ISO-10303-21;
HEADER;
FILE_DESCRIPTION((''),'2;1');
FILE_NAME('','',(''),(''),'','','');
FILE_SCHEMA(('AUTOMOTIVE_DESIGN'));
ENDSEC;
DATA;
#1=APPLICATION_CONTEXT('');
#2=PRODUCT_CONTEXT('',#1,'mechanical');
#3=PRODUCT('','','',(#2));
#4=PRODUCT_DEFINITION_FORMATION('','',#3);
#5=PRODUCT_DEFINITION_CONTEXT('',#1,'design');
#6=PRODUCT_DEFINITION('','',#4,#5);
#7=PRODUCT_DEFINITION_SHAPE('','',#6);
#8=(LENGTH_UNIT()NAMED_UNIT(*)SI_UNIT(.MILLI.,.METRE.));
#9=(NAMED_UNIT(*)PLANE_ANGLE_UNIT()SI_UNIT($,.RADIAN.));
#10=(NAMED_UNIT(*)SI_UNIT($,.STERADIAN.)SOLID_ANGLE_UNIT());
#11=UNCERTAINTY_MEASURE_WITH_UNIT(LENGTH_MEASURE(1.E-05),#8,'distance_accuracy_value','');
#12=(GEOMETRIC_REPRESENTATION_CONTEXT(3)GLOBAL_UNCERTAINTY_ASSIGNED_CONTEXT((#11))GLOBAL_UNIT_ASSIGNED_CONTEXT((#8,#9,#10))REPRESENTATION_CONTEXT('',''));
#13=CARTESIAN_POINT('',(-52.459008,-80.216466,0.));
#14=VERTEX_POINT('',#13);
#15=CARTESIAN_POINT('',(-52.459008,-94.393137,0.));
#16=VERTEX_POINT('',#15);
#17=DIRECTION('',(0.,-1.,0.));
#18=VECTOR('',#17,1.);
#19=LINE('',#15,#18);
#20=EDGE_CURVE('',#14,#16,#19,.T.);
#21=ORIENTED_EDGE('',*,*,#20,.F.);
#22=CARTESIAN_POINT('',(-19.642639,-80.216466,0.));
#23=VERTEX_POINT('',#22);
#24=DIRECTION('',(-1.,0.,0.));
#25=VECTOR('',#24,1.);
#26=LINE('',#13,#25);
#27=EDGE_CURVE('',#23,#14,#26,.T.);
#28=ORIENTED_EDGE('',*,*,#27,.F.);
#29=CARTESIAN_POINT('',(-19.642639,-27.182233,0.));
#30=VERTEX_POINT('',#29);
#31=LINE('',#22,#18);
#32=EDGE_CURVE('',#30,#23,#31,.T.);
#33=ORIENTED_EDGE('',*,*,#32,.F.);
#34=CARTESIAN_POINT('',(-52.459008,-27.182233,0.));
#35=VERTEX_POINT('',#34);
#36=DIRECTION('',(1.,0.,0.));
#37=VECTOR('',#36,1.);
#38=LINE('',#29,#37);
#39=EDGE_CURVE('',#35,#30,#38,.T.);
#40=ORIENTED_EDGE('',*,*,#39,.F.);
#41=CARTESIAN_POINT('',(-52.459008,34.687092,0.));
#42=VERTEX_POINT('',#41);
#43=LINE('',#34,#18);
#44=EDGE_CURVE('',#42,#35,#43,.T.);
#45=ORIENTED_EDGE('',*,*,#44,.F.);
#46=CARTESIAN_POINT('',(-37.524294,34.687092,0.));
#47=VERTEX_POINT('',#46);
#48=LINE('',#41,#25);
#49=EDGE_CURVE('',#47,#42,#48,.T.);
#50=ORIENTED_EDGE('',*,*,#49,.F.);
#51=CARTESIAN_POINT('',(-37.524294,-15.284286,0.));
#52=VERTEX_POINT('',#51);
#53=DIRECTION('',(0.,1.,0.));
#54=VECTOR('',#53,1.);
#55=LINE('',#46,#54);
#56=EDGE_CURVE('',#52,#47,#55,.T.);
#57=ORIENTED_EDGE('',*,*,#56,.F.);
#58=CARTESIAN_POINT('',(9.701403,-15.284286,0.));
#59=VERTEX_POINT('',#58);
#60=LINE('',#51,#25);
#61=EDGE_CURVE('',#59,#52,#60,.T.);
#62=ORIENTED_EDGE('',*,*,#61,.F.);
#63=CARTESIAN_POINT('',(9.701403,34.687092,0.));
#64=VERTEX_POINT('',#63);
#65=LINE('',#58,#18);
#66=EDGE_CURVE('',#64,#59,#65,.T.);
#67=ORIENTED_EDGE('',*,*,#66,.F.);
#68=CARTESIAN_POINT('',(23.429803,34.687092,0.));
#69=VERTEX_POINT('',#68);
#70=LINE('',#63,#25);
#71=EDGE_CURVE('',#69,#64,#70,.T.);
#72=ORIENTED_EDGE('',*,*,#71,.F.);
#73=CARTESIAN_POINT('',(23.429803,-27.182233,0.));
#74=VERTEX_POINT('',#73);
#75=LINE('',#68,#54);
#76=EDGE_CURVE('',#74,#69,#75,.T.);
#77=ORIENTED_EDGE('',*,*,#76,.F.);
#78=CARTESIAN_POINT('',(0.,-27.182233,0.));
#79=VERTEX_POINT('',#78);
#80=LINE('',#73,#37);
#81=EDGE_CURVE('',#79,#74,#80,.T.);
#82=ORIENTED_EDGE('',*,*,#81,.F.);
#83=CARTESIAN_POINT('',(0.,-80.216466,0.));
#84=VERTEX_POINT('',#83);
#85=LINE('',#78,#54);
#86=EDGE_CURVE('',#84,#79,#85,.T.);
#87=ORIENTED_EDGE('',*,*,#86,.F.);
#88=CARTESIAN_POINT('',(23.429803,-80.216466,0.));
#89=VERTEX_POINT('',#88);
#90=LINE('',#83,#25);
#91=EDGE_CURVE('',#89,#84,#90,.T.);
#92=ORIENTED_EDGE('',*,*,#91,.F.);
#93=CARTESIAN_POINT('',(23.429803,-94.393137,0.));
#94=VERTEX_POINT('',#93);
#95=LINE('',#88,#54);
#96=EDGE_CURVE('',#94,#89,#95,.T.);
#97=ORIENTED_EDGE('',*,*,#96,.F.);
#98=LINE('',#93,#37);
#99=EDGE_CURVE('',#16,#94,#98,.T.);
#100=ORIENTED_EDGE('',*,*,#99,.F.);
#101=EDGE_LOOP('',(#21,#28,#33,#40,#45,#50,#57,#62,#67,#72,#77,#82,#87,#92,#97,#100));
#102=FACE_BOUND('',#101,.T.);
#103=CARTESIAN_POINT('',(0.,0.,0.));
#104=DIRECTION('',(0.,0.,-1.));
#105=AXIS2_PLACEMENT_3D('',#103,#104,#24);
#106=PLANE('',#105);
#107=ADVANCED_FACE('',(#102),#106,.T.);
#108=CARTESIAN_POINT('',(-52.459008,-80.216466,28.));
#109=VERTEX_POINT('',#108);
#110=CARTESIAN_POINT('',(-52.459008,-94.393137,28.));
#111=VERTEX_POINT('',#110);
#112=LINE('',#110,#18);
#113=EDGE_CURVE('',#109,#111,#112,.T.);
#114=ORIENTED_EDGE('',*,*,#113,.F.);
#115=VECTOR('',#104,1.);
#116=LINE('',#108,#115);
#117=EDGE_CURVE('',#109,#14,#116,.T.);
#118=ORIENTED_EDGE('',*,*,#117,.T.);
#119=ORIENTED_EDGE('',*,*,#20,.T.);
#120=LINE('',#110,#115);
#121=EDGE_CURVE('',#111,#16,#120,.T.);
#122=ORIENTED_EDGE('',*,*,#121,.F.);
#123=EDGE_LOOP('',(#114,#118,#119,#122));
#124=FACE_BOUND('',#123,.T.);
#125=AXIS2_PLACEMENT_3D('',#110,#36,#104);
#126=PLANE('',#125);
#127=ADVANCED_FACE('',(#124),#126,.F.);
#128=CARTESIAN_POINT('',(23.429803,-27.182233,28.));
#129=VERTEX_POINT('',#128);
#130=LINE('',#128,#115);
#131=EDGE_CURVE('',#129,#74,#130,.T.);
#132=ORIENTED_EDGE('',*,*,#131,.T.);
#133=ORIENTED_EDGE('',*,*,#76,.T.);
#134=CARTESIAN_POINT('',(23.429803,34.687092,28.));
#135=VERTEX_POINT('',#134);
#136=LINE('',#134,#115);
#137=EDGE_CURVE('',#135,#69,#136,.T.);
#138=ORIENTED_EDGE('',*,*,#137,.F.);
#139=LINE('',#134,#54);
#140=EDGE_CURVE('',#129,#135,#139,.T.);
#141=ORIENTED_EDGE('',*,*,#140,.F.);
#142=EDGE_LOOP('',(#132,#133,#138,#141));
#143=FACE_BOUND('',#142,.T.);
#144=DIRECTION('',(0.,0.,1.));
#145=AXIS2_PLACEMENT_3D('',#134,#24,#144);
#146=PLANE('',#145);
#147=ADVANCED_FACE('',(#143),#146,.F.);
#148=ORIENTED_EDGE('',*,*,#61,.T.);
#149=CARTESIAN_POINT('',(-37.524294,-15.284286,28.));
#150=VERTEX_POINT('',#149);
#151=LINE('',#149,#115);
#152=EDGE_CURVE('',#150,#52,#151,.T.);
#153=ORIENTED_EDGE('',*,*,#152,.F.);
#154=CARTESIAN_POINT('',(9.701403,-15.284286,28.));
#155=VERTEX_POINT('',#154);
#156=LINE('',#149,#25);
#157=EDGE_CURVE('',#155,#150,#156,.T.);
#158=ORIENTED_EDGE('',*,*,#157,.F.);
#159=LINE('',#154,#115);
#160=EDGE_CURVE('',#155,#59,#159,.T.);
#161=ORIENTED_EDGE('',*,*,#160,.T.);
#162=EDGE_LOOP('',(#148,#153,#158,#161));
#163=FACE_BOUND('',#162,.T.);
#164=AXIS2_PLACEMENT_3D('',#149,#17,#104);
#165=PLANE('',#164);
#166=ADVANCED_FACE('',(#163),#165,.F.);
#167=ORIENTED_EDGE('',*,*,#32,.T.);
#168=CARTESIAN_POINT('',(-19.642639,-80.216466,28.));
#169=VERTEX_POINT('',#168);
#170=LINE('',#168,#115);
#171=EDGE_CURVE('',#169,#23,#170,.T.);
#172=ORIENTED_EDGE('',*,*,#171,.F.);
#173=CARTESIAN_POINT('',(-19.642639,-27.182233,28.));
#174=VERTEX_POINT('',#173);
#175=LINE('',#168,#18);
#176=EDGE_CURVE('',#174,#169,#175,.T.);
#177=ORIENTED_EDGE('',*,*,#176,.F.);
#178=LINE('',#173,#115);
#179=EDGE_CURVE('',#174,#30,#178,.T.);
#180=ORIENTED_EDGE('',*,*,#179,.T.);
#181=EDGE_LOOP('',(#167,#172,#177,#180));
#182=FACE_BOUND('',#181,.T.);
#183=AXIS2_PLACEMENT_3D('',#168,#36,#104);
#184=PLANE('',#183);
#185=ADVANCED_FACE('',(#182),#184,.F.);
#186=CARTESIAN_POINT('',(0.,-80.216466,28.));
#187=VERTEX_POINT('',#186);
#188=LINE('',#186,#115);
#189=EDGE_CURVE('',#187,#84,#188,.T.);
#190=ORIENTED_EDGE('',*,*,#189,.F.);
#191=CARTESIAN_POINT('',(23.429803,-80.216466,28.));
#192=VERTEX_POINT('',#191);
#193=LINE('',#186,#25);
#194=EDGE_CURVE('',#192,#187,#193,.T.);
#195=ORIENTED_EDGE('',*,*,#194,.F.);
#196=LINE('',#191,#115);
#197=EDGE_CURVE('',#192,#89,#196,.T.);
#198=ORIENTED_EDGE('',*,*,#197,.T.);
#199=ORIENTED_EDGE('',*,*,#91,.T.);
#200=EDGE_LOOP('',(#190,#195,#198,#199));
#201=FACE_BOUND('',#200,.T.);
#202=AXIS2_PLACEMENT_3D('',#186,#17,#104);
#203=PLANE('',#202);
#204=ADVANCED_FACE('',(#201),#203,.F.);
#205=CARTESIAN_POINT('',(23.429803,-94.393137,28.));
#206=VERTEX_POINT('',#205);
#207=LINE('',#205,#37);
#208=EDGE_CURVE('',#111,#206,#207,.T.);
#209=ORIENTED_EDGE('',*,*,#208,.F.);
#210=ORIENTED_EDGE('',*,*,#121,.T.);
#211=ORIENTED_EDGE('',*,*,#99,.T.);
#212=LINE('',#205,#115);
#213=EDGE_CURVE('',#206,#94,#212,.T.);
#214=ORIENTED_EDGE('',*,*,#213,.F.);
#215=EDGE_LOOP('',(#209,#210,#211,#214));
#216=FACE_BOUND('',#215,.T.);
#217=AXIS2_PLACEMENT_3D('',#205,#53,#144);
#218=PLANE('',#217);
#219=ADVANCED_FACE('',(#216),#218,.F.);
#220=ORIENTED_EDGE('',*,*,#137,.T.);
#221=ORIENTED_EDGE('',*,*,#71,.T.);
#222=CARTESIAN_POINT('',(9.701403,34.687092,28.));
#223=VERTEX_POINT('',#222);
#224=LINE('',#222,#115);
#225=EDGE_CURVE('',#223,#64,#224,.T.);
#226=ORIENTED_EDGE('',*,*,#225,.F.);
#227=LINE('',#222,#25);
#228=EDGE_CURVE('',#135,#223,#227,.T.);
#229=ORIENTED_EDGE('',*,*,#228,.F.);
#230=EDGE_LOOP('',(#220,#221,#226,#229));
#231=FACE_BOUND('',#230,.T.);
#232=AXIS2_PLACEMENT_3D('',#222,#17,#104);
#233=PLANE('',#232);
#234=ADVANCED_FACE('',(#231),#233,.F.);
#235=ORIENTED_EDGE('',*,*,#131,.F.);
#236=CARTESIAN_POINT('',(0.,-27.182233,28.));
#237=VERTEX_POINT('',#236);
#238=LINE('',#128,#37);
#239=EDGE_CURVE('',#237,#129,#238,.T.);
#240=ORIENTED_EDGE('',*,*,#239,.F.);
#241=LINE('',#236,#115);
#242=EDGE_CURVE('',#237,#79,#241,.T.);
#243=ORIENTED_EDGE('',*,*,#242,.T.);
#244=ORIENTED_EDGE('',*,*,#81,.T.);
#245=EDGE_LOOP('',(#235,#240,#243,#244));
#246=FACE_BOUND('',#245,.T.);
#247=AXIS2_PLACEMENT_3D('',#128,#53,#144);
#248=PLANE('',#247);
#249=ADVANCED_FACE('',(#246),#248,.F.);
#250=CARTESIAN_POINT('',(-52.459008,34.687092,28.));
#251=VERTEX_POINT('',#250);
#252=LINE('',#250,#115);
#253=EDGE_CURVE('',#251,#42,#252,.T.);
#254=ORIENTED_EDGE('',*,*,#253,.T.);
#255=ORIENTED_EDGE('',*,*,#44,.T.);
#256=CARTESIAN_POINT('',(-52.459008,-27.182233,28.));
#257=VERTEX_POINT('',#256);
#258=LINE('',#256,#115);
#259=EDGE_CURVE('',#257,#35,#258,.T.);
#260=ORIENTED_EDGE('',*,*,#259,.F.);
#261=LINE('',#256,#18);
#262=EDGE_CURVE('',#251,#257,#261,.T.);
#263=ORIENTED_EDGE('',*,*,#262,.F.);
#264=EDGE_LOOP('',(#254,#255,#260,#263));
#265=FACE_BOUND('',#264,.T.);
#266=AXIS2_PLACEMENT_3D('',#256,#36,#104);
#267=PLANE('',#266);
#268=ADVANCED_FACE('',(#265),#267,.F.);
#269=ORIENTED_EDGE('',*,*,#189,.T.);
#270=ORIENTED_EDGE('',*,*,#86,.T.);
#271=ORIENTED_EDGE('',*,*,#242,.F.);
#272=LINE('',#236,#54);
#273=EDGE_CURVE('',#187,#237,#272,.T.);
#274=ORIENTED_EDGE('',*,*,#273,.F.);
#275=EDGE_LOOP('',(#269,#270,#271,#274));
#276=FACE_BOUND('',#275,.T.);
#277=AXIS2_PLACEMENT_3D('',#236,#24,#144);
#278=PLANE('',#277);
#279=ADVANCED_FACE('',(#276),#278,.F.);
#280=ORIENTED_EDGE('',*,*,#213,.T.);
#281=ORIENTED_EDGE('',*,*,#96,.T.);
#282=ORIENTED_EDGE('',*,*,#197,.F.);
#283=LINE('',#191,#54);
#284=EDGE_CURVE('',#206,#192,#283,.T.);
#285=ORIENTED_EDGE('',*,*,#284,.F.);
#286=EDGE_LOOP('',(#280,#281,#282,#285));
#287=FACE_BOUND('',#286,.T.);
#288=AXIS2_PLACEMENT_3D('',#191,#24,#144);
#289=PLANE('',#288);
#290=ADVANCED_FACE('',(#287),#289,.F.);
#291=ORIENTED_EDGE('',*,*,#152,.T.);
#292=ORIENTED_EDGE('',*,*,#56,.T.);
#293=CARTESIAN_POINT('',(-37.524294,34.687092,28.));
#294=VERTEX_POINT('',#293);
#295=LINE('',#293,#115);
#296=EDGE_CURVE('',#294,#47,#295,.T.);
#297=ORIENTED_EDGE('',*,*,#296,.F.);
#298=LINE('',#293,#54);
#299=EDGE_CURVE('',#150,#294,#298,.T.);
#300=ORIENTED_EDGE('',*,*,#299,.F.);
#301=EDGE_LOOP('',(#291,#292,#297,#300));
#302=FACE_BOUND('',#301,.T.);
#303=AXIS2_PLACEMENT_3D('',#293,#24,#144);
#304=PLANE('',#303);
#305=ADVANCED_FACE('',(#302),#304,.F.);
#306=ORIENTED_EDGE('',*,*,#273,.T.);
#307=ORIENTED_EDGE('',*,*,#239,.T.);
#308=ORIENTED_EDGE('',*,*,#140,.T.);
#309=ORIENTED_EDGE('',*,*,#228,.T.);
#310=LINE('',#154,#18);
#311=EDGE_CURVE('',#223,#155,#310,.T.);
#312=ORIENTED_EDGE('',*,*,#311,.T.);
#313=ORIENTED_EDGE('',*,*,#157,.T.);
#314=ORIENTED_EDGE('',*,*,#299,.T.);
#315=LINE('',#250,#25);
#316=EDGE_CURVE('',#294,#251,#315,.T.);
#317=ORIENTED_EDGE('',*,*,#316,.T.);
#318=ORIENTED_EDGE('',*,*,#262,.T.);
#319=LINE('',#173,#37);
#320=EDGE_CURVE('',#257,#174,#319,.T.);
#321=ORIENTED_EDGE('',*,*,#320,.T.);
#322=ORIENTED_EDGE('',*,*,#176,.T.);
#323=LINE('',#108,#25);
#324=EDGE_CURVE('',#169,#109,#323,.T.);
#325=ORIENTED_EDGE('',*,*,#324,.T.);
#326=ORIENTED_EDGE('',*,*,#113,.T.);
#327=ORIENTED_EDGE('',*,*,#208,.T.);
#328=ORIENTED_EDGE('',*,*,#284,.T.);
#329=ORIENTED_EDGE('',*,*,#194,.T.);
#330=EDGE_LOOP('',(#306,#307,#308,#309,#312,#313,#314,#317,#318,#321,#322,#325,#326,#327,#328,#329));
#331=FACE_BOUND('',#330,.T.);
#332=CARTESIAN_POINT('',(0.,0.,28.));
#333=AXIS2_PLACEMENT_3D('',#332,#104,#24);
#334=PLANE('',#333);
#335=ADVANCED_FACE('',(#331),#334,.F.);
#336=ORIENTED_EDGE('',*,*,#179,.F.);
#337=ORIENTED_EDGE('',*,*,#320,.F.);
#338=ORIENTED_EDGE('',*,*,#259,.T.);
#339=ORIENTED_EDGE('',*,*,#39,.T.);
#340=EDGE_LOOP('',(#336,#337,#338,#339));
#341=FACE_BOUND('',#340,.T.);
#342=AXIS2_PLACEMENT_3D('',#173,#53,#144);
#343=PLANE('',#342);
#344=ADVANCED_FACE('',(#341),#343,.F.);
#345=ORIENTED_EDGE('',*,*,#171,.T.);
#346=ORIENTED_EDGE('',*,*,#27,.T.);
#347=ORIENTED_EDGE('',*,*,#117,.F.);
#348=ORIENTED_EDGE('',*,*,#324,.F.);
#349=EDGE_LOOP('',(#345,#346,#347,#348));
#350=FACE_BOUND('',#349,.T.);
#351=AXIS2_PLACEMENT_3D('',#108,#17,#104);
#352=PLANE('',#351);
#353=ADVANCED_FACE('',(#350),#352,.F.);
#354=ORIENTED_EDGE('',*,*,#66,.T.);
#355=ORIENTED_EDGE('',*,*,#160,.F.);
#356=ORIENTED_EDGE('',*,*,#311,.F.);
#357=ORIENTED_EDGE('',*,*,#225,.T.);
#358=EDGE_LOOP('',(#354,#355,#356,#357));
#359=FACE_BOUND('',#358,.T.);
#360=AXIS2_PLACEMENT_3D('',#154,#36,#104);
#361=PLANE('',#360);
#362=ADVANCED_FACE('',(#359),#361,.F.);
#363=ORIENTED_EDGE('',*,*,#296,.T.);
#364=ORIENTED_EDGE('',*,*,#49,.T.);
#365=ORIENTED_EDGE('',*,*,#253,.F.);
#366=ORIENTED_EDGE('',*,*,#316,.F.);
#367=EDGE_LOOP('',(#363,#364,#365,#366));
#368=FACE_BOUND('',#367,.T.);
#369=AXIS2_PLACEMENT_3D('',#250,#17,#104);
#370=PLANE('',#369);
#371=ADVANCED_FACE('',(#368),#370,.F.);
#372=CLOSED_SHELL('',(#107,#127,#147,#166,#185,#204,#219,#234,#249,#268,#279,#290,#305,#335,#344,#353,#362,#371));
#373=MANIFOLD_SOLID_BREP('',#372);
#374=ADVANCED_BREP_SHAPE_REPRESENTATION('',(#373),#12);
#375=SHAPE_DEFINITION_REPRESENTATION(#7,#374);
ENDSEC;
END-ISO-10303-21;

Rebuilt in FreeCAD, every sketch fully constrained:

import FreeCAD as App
import Part
import Sketcher
from FreeCAD import Vector
Q = App.Units.Quantity


def add_polygon(sketch, points):
    """Adds a closed chain of lines whose ends are joined by coincident constraints."""
    first, n = sketch.GeometryCount, len(points)
    for a, b in zip(points, points[1:] + points[:1]):
        sketch.addGeometry(Part.LineSegment(App.Vector(*a, 0), App.Vector(*b, 0)), False)
    for i in range(n):
        sketch.addConstraint(Sketcher.Constraint("Coincident", first + i, 2, first + (i + 1) % n, 1))

doc = App.newDocument("Part")
params = doc.addObject("Spreadsheet::Sheet", "Params")
for row, (alias, value) in enumerate([
    ("pad1_length", "28 mm"),
], start=1):
    params.set(f"A{row}", alias)
    params.set(f"B{row}", "=" + value)
    params.setAlias(f"B{row}", alias)

body = doc.addObject("PartDesign::Body", "Body")

# Sketch on XY plane
sketch1 = body.newObject("Sketcher::SketchObject", "Sketch")
sketch1.AttachmentSupport = (doc.getObject("XY_Plane"), [""])
sketch1.MapMode = "FlatFace"
add_polygon(sketch1, [(-38, -15), (-38, 35), (-52, 35), (-52, -27), (-20, -27), (-20, -80), (-52, -80), (-52, -94), (23, -94), (23, -80), (0, -80), (0, -27), (23, -27), (23, 35), (10, 35), (10, -15)])  # lines 0-15
sketch1.addConstraint([
    Sketcher.Constraint("Vertical", 0),
    Sketcher.Constraint("Horizontal", 1),
    Sketcher.Constraint("Vertical", 2),
    Sketcher.Constraint("Horizontal", 3),
    Sketcher.Constraint("Vertical", 4),
    Sketcher.Constraint("Horizontal", 5),
    Sketcher.Constraint("Vertical", 6),
    Sketcher.Constraint("Horizontal", 7),
    Sketcher.Constraint("Vertical", 8),
    Sketcher.Constraint("Horizontal", 9),
    Sketcher.Constraint("Vertical", 10),
    Sketcher.Constraint("Horizontal", 11),
    Sketcher.Constraint("Vertical", 12),
    Sketcher.Constraint("Horizontal", 13),
    Sketcher.Constraint("Vertical", 14),
    Sketcher.Constraint("Horizontal", 15),
    Sketcher.Constraint("PointOnObject", 9, 2, -2),
    Sketcher.Constraint("Horizontal", 5, 2, 8, 2),
    Sketcher.Constraint("Horizontal", 3, 2, 10, 2),
    Sketcher.Constraint("Horizontal", 1, 2, 12, 2),
    Sketcher.Constraint("Vertical", 2, 2, 5, 2),
    Sketcher.Constraint("Vertical", 8, 2, 11, 2),
    Sketcher.Constraint("DistanceX", 13, 2, 13, 1, Q("13.7284 mm")),
    Sketcher.Constraint("DistanceX", 3, 1, 3, 2, Q("32.816368 mm")),
    Sketcher.Constraint("DistanceX", 7, 1, 7, 2, Q("75.888811 mm")),
    Sketcher.Constraint("DistanceY", 6, 2, 6, 1, Q("14.176671 mm")),
    Sketcher.Constraint("DistanceX", 1, 2, 1, 1, Q("14.934713 mm")),
    Sketcher.Constraint("DistanceX", 9, 2, 9, 1, Q("23.429803 mm")),
    Sketcher.Constraint("DistanceY", 0, 1, 0, 2, Q("49.971378 mm")),
    Sketcher.Constraint("DistanceY", 2, 2, 2, 1, Q("61.869325 mm")),
    Sketcher.Constraint("DistanceY", 4, 2, 4, 1, Q("53.034233 mm")),
    Sketcher.Constraint("DistanceY", -1, 1, 0, 2, Q("34.687092 mm")),
])
pad1 = body.newObject("PartDesign::Pad", "Pad")
pad1.Profile = sketch1
pad1.setExpression("Length", "Params.pad1_length")

doc.recompute()
